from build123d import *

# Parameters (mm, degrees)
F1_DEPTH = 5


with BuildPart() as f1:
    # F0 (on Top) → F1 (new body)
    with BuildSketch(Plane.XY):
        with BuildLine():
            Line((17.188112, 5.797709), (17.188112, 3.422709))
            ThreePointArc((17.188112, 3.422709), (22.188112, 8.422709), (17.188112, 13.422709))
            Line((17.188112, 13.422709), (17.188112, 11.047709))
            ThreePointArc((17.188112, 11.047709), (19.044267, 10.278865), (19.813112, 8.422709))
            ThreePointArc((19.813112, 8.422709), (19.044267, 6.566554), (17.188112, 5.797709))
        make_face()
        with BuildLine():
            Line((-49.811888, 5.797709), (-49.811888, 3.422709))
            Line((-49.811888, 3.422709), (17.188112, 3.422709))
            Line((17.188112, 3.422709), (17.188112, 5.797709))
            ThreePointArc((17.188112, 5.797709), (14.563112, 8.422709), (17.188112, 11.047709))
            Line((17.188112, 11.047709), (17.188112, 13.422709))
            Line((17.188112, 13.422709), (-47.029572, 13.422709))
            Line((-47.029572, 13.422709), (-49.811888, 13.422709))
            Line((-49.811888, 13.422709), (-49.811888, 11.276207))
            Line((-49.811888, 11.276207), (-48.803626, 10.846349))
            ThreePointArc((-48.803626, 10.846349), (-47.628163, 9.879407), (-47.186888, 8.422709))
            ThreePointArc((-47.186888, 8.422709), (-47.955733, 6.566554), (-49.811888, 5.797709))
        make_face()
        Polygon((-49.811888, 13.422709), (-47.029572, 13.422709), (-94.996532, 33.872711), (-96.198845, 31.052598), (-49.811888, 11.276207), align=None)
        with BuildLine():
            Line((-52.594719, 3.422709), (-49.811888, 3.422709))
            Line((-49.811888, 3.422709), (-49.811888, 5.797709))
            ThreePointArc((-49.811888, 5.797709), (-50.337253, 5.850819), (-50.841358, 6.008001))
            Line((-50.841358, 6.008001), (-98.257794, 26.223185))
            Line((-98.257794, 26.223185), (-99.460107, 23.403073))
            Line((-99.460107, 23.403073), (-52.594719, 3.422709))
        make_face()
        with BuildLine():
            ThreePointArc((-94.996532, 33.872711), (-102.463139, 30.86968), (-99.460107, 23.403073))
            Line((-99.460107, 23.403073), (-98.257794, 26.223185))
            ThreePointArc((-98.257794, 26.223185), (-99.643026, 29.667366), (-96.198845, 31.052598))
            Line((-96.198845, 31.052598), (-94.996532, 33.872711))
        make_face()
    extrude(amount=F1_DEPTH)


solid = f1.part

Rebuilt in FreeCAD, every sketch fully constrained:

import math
import FreeCAD as App
import Part
import Sketcher

V = App.Vector

doc = App.newDocument("Part")
body = doc.addObject("PartDesign::Body", "Body")

# Sketch on XY plane
sketch1 = body.newObject("Sketcher::SketchObject", "Sketch")
sketch1.AttachmentSupport = (doc.getObject("XY_Plane"), [""])
sketch1.MapMode = "FlatFace"
sketch1.addGeometry(Part.ArcOfCircle(Part.Circle(V(17.188112, 8.422709, 0), V(0, 0, 1), 5), math.radians(-90), math.radians(90)), False)
sketch1.addGeometry(Part.LineSegment(V(17.188112, 13.422709, 0), V(-47.029572, 13.422709, 0)), False)
sketch1.addGeometry(Part.LineSegment(V(-47.029572, 13.422709, 0), V(-94.996532, 33.872711, 0)), False)
sketch1.addGeometry(Part.ArcOfCircle(Part.Circle(V(-97.22832, 28.637892, 0), V(0, 0, 1), 5.690712), math.radians(66.909736), math.radians(246.909749)), False)
sketch1.addGeometry(Part.LineSegment(V(-99.460107, 23.403073, 0), V(-52.594719, 3.422709, 0)), False)
sketch1.addGeometry(Part.LineSegment(V(-52.594719, 3.422709, 0), V(17.188112, 3.422709, 0)), False)
sketch1.addGeometry(Part.LineSegment(V(-96.198845, 31.052598, 0), V(-49.811888, 11.276207, 0)), False)
sketch1.addGeometry(Part.LineSegment(V(-49.811888, 11.276207, 0), V(-48.803626, 10.846349, 0)), False)
sketch1.addGeometry(Part.ArcOfCircle(Part.Circle(V(-49.811888, 8.422709, 0), V(0, 0, 1), 2.625), math.radians(0.000007), math.radians(67.412134)), False)
sketch1.addGeometry(Part.ArcOfCircle(Part.Circle(V(-49.811889, 8.42271, 0), V(0, 0, 1), 2.625001), math.radians(-89.999978), math.radians(-0.000022)), False)
sketch1.addGeometry(Part.ArcOfCircle(Part.Circle(V(-49.811892, 8.422686, 0), V(0, 0, 1), 2.624977), math.radians(-113.090277), math.radians(-89.999917)), False)
sketch1.addGeometry(Part.LineSegment(V(-50.841358, 6.008001, 0), V(-98.257794, 26.223185, 0)), False)
sketch1.addGeometry(Part.ArcOfCircle(Part.Circle(V(-97.228319, 28.637891, 0), V(0, 0, 1), 2.625), math.radians(66.909739), math.radians(246.909739)), False)
sketch1.addGeometry(Part.ArcOfCircle(Part.Circle(V(17.188113, 8.42271, 0), V(0, 0, 1), 2.624999), math.radians(-0.000015), math.radians(90.000015)), False)
sketch1.addGeometry(Part.ArcOfCircle(Part.Circle(V(17.188111, 8.42271, 0), V(0, 0, 1), 2.625001), math.radians(-89.999978), math.radians(-0.000022)), False)
sketch1.addGeometry(Part.ArcOfCircle(Part.Circle(V(17.188112, 8.422709, 0), V(0, 0, 1), 2.625), math.radians(90), math.radians(270)), False)
sketch1.addConstraint(Sketcher.Constraint("Coincident", 0, 2, 1, 1))
sketch1.addConstraint(Sketcher.Constraint("Coincident", 1, 2, 2, 1))
sketch1.addConstraint(Sketcher.Constraint("Coincident", 2, 2, 3, 1))
sketch1.addConstraint(Sketcher.Constraint("Coincident", 3, 2, 4, 1))
sketch1.addConstraint(Sketcher.Constraint("Coincident", 4, 2, 5, 1))
sketch1.addConstraint(Sketcher.Constraint("Coincident", 5, 2, 0, 1))
sketch1.addConstraint(Sketcher.Constraint("Coincident", 6, 2, 7, 1))
sketch1.addConstraint(Sketcher.Constraint("Coincident", 7, 2, 8, 2))
sketch1.addConstraint(Sketcher.Constraint("Coincident", 8, 1, 9, 2))
sketch1.addConstraint(Sketcher.Constraint("Coincident", 9, 1, 10, 2))
sketch1.addConstraint(Sketcher.Constraint("Coincident", 10, 1, 11, 1))
sketch1.addConstraint(Sketcher.Constraint("Coincident", 11, 2, 12, 2))
sketch1.addConstraint(Sketcher.Constraint("Coincident", 12, 1, 6, 1))
sketch1.addConstraint(Sketcher.Constraint("Coincident", 13, 1, 14, 2))
sketch1.addConstraint(Sketcher.Constraint("Coincident", 14, 1, 15, 2))
sketch1.addConstraint(Sketcher.Constraint("Coincident", 15, 1, 13, 2))
sketch1.addConstraint(Sketcher.Constraint("Horizontal", 1))
sketch1.addConstraint(Sketcher.Constraint("Horizontal", 5))
sketch1.addConstraint(Sketcher.Constraint("Coincident", 9, 3, 8, 3))
sketch1.addConstraint(Sketcher.Constraint("Coincident", 12, 3, 3, 3))
sketch1.addConstraint(Sketcher.Constraint("Coincident", 13, 3, 0, 3))
sketch1.addConstraint(Sketcher.Constraint("Coincident", 14, 3, 0, 3))
sketch1.addConstraint(Sketcher.Constraint("Radius", 0, 5.0))
sketch1.addConstraint(Sketcher.Constraint("Radius", 8, 2.625))
sketch1.addConstraint(Sketcher.Constraint("Radius", 12, 2.625))
sketch1.addConstraint(Sketcher.Constraint("Radius", 13, 2.624999))
sketch1.addConstraint(Sketcher.Constraint("DistanceX", 8, 3, 0, 3, 67.0))
sketch1.addConstraint(Sketcher.Constraint("DistanceX", 8, 3, 15, 3, 67.0))
sketch1.addConstraint(Sketcher.Constraint("DistanceX", 8, 3, 0, 2, 67.0))
sketch1.addConstraint(Sketcher.Constraint("DistanceY", 8, 3, 0, 2, 5.0))
sketch1.addConstraint(Sketcher.Constraint("DistanceY", 13, 1, 0, 2, 5.0))
sketch1.addConstraint(Sketcher.Constraint("DistanceY", 9, 3, 2, 2, 25.450001))
sketch1.addConstraint(Sketcher.Constraint("DistanceY", -1, 1, 10, 1, 6.008001))
sketch1.addConstraint(Sketcher.Constraint("Radius", 3, 5.690712))
sketch1.addConstraint(Sketcher.Constraint("Radius", 10, 2.624977))
sketch1.addConstraint(Sketcher.Constraint("DistanceX", 6, 2, 8, 1, 2.625))
sketch1.addConstraint(Sketcher.Constraint("DistanceX", 9, 1, 8, 1, 2.625))
sketch1.addConstraint(Sketcher.Constraint("DistanceY", 9, 1, 8, 1, 2.625))
sketch1.addConstraint(Sketcher.Constraint("DistanceX", 5, 1, 5, 2, 69.782831))
sketch1.addConstraint(Sketcher.Constraint("DistanceY", 8, 3, 6, 2, 2.853498))
sketch1.addConstraint(Sketcher.Constraint("Distance", 4, 50.94683))
sketch1.addConstraint(Sketcher.Constraint("Distance", 7, 1.09607))
sketch1.addConstraint(Sketcher.Constraint("DistanceX", 1, 2, 1, 1, 64.217684))
sketch1.addConstraint(Sketcher.Constraint("DistanceX", -1, 1, 0, 3, 17.188112))
sketch1.addConstraint(Sketcher.Constraint("DistanceY", -1, 1, 0, 3, 8.422709))
sketch1.addConstraint(Sketcher.Constraint("DistanceX", 3, 3, -1, 1, 97.22832))
sketch1.addConstraint(Sketcher.Constraint("DistanceX", 10, 3, -1, 1, 49.811892))
sketch1.addConstraint(Sketcher.Constraint("DistanceY", -1, 1, 12, 3, 28.637891))
sketch1.addConstraint(Sketcher.Constraint("DistanceX", 4, 2, -1, 1, 52.594719))
sketch1.addConstraint(Sketcher.Constraint("DistanceX", -1, 1, 14, 1, 17.188112))
sketch1.addConstraint(Sketcher.Constraint("DistanceX", -1, 1, 15, 1, 17.188112))
sketch1.addConstraint(Sketcher.Constraint("DistanceY", 6, 2, 11, 2, 14.946978))
sketch1.addConstraint(Sketcher.Constraint("DistanceX", 11, 2, 12, 1, 2.058949))
pad1 = body.newObject("PartDesign::Pad", "Pad")
pad1.Profile = sketch1
pad1.Length = 5

doc.recompute()
